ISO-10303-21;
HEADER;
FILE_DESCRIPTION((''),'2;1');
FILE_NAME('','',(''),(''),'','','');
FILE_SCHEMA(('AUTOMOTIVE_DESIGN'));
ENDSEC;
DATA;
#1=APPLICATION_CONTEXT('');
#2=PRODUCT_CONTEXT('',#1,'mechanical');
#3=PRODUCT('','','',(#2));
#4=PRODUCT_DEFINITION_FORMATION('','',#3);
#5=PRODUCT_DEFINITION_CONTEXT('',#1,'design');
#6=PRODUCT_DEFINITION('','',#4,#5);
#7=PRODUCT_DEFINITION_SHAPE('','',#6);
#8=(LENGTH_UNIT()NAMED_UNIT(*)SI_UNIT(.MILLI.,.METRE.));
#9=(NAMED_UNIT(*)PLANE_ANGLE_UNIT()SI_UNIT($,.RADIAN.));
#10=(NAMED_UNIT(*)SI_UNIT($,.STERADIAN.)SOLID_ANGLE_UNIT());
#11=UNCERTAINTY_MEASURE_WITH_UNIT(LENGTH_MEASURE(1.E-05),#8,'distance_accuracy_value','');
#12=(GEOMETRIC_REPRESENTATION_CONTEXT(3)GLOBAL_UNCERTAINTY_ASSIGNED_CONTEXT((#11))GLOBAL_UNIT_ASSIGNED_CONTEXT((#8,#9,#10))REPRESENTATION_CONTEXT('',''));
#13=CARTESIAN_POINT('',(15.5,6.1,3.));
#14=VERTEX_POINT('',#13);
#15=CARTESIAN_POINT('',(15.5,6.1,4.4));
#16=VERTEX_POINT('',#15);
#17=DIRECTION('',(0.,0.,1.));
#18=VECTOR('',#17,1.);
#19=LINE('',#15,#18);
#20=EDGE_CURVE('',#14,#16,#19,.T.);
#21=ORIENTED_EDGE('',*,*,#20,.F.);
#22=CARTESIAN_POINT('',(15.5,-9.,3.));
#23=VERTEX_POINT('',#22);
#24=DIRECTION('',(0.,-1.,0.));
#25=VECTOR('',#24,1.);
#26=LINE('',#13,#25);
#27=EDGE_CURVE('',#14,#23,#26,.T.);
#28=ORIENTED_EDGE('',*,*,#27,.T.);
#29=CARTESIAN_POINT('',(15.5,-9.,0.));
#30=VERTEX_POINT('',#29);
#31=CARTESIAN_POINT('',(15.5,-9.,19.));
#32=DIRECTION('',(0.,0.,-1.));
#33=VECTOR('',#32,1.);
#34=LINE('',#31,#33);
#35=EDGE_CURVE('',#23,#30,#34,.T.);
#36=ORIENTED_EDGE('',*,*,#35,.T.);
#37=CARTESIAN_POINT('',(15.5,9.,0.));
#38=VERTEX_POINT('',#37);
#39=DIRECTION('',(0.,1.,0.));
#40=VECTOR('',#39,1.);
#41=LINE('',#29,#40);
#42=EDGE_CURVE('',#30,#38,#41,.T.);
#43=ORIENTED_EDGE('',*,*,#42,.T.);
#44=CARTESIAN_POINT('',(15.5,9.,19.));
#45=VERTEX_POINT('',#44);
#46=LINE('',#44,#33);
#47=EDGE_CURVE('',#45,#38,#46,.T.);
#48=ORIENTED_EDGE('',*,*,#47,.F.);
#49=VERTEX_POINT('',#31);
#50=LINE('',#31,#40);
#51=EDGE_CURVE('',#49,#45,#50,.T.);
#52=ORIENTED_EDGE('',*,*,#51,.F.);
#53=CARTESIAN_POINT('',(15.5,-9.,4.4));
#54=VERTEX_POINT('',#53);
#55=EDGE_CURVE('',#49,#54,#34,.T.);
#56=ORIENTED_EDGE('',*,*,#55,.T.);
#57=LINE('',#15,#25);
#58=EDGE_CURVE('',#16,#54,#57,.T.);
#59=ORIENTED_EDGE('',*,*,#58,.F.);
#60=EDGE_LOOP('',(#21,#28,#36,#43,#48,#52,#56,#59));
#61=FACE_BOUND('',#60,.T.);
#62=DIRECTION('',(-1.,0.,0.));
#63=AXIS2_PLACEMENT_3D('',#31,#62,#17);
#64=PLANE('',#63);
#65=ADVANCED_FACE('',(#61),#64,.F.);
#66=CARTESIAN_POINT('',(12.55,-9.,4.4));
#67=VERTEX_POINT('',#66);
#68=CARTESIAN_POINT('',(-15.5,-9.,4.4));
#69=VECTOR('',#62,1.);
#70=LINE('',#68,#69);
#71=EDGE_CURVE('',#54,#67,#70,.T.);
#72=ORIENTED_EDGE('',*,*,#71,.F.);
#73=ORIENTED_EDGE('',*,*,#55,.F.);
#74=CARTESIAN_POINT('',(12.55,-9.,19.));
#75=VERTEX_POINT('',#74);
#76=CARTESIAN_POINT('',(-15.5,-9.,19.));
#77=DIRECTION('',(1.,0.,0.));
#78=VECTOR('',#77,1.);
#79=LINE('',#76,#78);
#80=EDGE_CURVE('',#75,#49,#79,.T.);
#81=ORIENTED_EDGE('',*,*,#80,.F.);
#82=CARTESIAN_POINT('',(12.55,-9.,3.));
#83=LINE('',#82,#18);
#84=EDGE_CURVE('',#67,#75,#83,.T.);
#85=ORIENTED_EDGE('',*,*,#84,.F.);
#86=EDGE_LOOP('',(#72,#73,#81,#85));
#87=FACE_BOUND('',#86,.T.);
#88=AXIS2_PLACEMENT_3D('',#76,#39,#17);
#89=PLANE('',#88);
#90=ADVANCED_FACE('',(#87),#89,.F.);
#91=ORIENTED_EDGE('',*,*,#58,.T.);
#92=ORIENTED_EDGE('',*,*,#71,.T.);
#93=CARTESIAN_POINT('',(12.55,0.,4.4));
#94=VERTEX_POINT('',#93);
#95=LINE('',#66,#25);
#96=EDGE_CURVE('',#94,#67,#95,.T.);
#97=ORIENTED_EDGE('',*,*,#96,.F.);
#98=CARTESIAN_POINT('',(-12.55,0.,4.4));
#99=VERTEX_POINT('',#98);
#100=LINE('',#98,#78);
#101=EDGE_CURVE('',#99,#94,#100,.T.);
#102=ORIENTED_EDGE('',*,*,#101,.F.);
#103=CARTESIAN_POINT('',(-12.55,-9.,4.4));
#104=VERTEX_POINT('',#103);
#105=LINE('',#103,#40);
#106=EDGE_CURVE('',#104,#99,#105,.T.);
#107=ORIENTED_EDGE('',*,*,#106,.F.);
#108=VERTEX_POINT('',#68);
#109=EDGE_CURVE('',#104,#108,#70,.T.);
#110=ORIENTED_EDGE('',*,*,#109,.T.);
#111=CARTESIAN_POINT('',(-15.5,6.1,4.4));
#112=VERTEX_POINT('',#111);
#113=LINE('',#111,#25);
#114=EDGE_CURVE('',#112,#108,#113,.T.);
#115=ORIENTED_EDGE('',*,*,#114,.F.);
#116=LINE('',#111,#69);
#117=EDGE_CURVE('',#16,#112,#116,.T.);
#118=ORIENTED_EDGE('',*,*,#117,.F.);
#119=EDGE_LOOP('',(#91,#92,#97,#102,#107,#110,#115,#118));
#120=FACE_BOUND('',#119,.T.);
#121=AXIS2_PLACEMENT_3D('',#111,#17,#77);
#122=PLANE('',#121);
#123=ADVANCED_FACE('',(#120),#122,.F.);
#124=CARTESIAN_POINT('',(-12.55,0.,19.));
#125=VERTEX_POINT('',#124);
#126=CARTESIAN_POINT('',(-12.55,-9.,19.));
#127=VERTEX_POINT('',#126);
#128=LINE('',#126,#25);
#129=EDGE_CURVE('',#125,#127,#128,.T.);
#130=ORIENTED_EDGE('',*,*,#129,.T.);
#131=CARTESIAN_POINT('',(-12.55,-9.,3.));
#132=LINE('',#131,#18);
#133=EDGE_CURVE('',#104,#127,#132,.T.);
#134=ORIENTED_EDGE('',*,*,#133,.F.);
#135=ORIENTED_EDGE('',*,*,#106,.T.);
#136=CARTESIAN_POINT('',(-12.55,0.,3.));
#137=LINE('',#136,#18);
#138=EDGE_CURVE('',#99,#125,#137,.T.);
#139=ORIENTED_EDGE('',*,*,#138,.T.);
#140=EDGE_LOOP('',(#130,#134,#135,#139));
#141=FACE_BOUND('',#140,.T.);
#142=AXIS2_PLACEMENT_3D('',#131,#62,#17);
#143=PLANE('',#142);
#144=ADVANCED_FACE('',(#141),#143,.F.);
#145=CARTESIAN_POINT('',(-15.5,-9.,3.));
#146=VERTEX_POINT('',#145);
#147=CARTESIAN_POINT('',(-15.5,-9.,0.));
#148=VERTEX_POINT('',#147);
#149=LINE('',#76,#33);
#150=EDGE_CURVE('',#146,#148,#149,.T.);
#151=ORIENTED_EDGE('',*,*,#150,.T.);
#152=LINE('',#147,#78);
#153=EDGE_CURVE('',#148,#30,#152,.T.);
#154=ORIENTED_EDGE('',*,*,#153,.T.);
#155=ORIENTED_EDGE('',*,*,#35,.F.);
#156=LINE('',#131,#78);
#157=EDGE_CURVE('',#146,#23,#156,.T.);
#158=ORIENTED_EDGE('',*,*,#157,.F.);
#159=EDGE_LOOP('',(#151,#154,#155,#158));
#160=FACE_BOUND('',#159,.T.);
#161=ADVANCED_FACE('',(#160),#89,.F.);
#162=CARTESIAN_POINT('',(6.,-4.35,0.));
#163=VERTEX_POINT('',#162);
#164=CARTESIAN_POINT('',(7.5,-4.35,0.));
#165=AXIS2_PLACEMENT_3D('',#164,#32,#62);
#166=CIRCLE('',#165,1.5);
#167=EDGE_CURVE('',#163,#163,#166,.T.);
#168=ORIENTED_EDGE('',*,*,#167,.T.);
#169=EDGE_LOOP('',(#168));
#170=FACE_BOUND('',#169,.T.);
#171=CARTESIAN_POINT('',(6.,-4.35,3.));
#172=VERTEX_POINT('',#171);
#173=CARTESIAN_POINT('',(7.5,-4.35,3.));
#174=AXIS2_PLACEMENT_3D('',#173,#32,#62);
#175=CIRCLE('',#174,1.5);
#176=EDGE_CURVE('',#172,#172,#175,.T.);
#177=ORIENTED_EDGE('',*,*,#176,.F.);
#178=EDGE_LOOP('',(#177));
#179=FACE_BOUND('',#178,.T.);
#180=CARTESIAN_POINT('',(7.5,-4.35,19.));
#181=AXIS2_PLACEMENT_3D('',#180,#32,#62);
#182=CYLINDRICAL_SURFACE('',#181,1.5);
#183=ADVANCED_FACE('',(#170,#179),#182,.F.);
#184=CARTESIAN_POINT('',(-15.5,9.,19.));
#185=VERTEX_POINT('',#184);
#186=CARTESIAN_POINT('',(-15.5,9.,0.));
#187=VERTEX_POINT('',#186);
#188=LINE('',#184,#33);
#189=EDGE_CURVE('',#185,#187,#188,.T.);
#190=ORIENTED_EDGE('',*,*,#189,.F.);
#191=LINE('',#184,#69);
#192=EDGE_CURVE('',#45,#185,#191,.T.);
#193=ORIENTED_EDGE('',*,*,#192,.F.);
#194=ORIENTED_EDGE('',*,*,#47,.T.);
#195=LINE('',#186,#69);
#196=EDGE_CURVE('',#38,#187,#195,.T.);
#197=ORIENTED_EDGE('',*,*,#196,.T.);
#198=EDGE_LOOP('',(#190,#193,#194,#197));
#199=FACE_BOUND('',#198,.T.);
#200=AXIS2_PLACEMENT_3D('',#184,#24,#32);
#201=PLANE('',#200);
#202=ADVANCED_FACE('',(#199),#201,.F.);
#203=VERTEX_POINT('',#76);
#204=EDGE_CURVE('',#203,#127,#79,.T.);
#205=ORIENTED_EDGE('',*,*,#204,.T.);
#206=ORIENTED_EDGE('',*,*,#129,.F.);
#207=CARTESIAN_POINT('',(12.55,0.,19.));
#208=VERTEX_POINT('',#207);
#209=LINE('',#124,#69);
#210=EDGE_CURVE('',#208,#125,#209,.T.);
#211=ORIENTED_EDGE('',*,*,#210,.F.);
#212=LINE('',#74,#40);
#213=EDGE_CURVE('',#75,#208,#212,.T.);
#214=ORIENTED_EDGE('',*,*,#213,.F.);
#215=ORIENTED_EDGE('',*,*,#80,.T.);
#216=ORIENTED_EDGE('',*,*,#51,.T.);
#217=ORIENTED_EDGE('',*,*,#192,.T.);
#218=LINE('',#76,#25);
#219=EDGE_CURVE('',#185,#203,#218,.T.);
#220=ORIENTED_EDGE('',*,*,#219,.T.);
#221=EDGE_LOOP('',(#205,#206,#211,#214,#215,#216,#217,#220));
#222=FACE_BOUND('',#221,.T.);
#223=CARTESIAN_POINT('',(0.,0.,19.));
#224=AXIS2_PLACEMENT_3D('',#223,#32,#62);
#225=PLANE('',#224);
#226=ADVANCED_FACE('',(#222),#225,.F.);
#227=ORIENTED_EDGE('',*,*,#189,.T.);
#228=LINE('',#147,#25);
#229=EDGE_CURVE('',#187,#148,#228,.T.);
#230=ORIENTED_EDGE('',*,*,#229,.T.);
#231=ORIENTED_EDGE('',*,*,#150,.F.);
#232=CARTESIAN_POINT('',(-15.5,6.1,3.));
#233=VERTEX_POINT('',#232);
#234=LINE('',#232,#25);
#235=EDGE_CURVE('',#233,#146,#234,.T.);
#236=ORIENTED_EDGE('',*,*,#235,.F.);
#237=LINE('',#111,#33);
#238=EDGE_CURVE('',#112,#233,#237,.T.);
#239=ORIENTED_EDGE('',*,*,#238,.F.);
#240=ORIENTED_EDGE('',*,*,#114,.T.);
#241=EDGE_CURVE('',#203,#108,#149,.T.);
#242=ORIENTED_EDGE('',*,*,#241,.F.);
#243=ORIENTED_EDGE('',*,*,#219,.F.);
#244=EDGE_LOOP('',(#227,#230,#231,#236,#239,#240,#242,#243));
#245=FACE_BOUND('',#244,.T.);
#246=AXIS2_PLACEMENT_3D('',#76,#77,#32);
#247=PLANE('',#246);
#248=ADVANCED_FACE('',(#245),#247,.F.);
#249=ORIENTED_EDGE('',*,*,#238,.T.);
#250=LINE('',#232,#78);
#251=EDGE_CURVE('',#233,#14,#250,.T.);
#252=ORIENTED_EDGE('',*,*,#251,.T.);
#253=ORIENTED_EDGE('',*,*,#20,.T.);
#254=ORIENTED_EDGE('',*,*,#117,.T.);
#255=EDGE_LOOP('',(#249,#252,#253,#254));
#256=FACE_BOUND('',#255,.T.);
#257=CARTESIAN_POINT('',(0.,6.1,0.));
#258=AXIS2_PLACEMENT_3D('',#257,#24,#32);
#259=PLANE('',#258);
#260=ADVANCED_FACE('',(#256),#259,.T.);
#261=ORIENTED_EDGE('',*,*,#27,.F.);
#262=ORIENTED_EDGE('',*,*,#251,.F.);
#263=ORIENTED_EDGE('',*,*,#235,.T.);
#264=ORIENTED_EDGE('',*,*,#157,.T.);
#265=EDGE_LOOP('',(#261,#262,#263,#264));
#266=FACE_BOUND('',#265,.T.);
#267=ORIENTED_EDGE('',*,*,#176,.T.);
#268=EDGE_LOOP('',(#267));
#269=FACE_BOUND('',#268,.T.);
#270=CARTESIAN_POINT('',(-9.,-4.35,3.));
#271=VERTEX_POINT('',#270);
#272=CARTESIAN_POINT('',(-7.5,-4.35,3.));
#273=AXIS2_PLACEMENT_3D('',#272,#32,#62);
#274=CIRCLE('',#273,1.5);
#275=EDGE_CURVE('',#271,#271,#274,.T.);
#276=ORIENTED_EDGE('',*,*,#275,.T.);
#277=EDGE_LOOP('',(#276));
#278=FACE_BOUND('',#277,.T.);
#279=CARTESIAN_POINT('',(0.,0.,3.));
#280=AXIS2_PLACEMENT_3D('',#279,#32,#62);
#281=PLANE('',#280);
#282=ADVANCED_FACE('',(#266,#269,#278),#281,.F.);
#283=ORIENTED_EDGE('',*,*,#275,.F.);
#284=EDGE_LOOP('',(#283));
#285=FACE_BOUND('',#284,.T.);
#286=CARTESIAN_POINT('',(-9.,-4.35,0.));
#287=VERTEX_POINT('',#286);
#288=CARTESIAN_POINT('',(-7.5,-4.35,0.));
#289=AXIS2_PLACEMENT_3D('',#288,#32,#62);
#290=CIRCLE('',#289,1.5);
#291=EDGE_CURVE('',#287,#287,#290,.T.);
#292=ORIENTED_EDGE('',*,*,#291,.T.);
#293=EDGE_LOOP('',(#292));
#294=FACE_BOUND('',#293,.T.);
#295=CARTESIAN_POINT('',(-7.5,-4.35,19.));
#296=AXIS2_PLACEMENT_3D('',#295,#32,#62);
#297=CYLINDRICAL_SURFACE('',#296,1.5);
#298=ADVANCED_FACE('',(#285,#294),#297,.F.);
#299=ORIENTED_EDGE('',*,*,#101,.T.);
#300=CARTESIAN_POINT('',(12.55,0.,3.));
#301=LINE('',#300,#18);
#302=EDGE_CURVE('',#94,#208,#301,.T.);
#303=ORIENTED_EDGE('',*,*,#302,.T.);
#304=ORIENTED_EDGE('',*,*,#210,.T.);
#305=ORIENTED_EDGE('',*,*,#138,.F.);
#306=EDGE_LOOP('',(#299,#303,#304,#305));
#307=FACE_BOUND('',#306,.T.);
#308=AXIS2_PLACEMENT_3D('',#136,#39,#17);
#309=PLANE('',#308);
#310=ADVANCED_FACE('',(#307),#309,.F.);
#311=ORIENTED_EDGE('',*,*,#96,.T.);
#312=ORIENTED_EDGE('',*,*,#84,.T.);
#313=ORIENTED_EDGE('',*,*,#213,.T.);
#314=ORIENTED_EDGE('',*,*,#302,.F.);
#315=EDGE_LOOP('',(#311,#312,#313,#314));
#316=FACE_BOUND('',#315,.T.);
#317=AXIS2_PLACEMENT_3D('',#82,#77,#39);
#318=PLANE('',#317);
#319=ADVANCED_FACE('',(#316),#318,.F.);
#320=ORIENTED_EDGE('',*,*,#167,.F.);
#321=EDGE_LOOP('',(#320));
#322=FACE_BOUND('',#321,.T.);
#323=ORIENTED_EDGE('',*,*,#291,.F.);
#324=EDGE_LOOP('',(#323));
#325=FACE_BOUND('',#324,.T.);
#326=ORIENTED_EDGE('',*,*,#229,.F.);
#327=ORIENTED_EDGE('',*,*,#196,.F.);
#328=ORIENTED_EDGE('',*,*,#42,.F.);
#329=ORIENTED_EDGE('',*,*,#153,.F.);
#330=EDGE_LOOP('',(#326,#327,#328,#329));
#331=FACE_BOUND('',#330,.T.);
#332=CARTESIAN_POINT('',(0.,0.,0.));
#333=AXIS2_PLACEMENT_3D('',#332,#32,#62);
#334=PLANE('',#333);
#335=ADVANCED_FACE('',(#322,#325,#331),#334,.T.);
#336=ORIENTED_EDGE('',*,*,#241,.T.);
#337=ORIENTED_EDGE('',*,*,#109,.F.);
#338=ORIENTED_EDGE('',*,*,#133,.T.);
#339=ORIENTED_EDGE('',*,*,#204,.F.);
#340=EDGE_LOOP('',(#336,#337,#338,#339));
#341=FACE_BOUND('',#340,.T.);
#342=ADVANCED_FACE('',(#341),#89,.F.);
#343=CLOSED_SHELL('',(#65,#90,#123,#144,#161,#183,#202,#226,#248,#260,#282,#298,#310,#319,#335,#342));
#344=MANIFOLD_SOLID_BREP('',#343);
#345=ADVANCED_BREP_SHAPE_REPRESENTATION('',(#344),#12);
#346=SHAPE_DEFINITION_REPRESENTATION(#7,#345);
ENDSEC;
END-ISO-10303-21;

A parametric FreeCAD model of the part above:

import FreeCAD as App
import Part
import Sketcher

V = App.Vector

doc = App.newDocument("Part")
body = doc.addObject("PartDesign::Body", "Body")

# Sketch on XY plane
sketch1 = body.newObject("Sketcher::SketchObject", "Sketch")
sketch1.AttachmentSupport = (doc.getObject("XY_Plane"), [""])
sketch1.MapMode = "FlatFace"
sketch1.addGeometry([
    Part.LineSegment(V(-16, 9, 0), V(-16, -9, 0)),
    Part.LineSegment(V(-16, -9, 0), V(16, -9, 0)),
    Part.LineSegment(V(16, -9, 0), V(16, 9, 0)),
    Part.LineSegment(V(16, 9, 0), V(-16, 9, 0)),
], False)
sketch1.addConstraint([
    Sketcher.Constraint("Coincident", 0, 2, 1, 1),
    Sketcher.Constraint("Coincident", 1, 2, 2, 1),
    Sketcher.Constraint("Coincident", 2, 2, 3, 1),
    Sketcher.Constraint("Coincident", 3, 2, 0, 1),
    Sketcher.Constraint("Vertical", 0),
    Sketcher.Constraint("Horizontal", 1),
    Sketcher.Constraint("Vertical", 2),
    Sketcher.Constraint("Horizontal", 3),
    Sketcher.Constraint("Symmetric", 0, 2, 2, 2, -1, 1),
    Sketcher.Constraint("DistanceX", 1, 1, 1, 2, 31.0),
    Sketcher.Constraint("DistanceY", 0, 2, 0, 1, 18.0),
])
pad1 = body.newObject("PartDesign::Pad", "Pad")
pad1.Profile = sketch1
pad1.Length = 19

# Sketch on XY plane
sketch2 = body.newObject("Sketcher::SketchObject", "Sketch001")
sketch2.AttachmentSupport = (doc.getObject("XY_Plane"), [""])
sketch2.MapMode = "FlatFace"
sketch2.AttachmentOffset = App.Placement(V(0, 0, 19), App.Rotation())
sketch2.addGeometry([
    Part.LineSegment(V(-13, 0, 0), V(-13, -9, 0)),
    Part.LineSegment(V(-13, -9, 0), V(13, -9, 0)),
    Part.LineSegment(V(13, -9, 0), V(13, 0, 0)),
    Part.LineSegment(V(13, 0, 0), V(-13, 0, 0)),
], False)
sketch2.addConstraint([
    Sketcher.Constraint("Coincident", 0, 2, 1, 1),
    Sketcher.Constraint("Coincident", 1, 2, 2, 1),
    Sketcher.Constraint("Coincident", 2, 2, 3, 1),
    Sketcher.Constraint("Coincident", 3, 2, 0, 1),
    Sketcher.Constraint("Vertical", 0),
    Sketcher.Constraint("Horizontal", 1),
    Sketcher.Constraint("Vertical", 2),
    Sketcher.Constraint("Horizontal", 3),
    Sketcher.Constraint("Symmetric", 2, 2, 3, 2, -1, 1),
    Sketcher.Constraint("DistanceY", 0, 2, 0, 1, 9.0),
    Sketcher.Constraint("DistanceX", 1, 1, 1, 2, 25.1),
])
pocket1 = body.newObject("PartDesign::Pocket", "Pocket")
pocket1.Profile = sketch2
pocket1.Length = 16

# Sketch on XZ plane
sketch3 = body.newObject("Sketcher::SketchObject", "Sketch002")
sketch3.AttachmentSupport = (doc.getObject("XZ_Plane"), [""])
sketch3.MapMode = "FlatFace"
sketch3.AttachmentOffset = App.Placement(V(0, 0, 9), App.Rotation())
sketch3.addGeometry([
    Part.LineSegment(V(-15.5, 4.4, 0), V(-15.5, 3, 0)),
    Part.LineSegment(V(-15.5, 3, 0), V(15.5, 3, 0)),
    Part.LineSegment(V(15.5, 3, 0), V(15.5, 4.4, 0)),
    Part.LineSegment(V(15.5, 4.4, 0), V(-15.5, 4.4, 0)),
], False)
sketch3.addConstraint([
    Sketcher.Constraint("Coincident", 0, 2, 1, 1),
    Sketcher.Constraint("Coincident", 1, 2, 2, 1),
    Sketcher.Constraint("Coincident", 2, 2, 3, 1),
    Sketcher.Constraint("Coincident", 3, 2, 0, 1),
    Sketcher.Constraint("Vertical", 0),
    Sketcher.Constraint("Horizontal", 1),
    Sketcher.Constraint("Vertical", 2),
    Sketcher.Constraint("Horizontal", 3),
    Sketcher.Constraint("DistanceX", 1, 1, 1, 2, 31.0),
    Sketcher.Constraint("DistanceY", 0, 2, 0, 1, 1.4),
    Sketcher.Constraint("DistanceY", -1, 1, 0, 2, 3.0),
    Sketcher.Constraint("DistanceX", 0, 2, -1, 1, 15.5),
])
pocket2 = body.newObject("PartDesign::Pocket", "Pocket001")
pocket2.Profile = sketch3
pocket2.Length = 15.1

# Sketch on XY plane
sketch4 = body.newObject("Sketcher::SketchObject", "Sketch003")
sketch4.AttachmentSupport = (doc.getObject("XY_Plane"), [""])
sketch4.MapMode = "FlatFace"
sketch4.addGeometry([
    Part.Circle(V(7.5, -4.3, 0), V(0, 0, 1), 1.5),
    Part.Circle(V(-7.5, -4.3, 0), V(0, 0, 1), 1.5),
], False)
sketch4.addConstraint([
    Sketcher.Constraint("Equal", 0, 1),
    Sketcher.Constraint("Symmetric", 0, 3, 1, 3, -2),
    Sketcher.Constraint("Diameter", 0, 3.0),
    Sketcher.Constraint("DistanceX", 1, 3, 0, 3, 15.0),
    Sketcher.Constraint("DistanceY", 0, 3, -1, 1, 4.35),
])
pocket3 = body.newObject("PartDesign::Pocket", "Pocket002")
pocket3.Profile = sketch4
pocket3.Type = "ThroughAll"
pocket3.Reversed = True

doc.recompute()
